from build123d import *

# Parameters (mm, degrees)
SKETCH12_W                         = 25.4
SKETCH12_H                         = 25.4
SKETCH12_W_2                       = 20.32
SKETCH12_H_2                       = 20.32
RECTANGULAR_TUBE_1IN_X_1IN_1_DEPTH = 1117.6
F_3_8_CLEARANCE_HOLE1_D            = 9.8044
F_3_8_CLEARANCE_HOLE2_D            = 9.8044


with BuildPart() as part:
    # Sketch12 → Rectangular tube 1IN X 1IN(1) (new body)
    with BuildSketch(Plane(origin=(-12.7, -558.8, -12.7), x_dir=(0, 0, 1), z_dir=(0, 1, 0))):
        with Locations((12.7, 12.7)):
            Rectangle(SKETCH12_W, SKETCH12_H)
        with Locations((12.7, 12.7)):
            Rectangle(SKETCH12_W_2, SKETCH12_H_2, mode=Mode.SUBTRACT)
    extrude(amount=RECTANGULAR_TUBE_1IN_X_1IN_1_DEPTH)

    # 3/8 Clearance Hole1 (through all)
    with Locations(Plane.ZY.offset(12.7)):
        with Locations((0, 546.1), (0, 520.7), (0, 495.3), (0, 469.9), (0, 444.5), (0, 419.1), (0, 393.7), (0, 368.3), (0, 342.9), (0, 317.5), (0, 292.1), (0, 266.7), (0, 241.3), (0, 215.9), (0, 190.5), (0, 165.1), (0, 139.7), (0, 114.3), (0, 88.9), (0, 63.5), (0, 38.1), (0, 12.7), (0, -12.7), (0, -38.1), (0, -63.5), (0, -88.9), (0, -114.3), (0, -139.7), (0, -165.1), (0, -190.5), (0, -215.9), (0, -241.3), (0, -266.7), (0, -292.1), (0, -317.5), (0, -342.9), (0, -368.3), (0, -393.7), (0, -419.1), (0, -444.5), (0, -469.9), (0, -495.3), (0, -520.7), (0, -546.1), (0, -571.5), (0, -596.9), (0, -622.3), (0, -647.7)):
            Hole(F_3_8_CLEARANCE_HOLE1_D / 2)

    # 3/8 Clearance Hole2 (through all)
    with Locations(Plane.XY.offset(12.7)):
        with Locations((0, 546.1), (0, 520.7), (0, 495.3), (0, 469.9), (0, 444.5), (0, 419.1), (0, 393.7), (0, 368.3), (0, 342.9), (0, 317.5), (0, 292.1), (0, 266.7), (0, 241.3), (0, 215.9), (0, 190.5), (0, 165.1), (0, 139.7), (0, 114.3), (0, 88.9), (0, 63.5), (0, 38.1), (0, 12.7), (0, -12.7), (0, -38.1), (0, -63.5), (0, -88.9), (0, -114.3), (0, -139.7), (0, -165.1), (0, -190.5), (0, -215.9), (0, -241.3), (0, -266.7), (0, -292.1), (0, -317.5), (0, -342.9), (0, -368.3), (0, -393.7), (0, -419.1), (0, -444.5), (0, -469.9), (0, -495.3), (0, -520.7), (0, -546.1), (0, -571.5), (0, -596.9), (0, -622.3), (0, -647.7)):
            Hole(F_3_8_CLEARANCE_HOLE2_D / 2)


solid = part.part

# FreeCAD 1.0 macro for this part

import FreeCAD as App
import Part
import Sketcher
Q = App.Units.Quantity

doc = App.newDocument("Part")
body = doc.addObject("PartDesign::Body", "Body")

# Sketch on XZ plane
sketch1 = body.newObject("Sketcher::SketchObject", "Sketch")
sketch1.AttachmentSupport = (doc.getObject("XZ_Plane"), [""])
sketch1.MapMode = "FlatFace"
sketch1.AttachmentOffset = App.Placement(App.Vector(0, 0, 22 * 25.4), App.Rotation())
sketch1.addGeometry([
    Part.LineSegment(App.Vector(13, -13, 0), App.Vector(-13, -13, 0)),  # 0
    Part.LineSegment(App.Vector(-13, -13, 0), App.Vector(-13, 13, 0)),  # 1
    Part.LineSegment(App.Vector(-13, 13, 0), App.Vector(13, 13, 0)),  # 2
    Part.LineSegment(App.Vector(13, 13, 0), App.Vector(13, -13, 0)),  # 3
    Part.LineSegment(App.Vector(-10, 10, 0), App.Vector(-10, -10, 0)),  # 4
    Part.LineSegment(App.Vector(-10, -10, 0), App.Vector(10, -10, 0)),  # 5
    Part.LineSegment(App.Vector(10, -10, 0), App.Vector(10, 10, 0)),  # 6
    Part.LineSegment(App.Vector(10, 10, 0), App.Vector(-10, 10, 0)),  # 7
], False)
sketch1.addConstraint([
    Sketcher.Constraint("Coincident", 0, 2, 1, 1),
    Sketcher.Constraint("Coincident", 1, 2, 2, 1),
    Sketcher.Constraint("Coincident", 2, 2, 3, 1),
    Sketcher.Constraint("Coincident", 3, 2, 0, 1),
    Sketcher.Constraint("Coincident", 4, 2, 5, 1),
    Sketcher.Constraint("Coincident", 5, 2, 6, 1),
    Sketcher.Constraint("Coincident", 6, 2, 7, 1),
    Sketcher.Constraint("Coincident", 7, 2, 4, 1),
    Sketcher.Constraint("Horizontal", 0),
    Sketcher.Constraint("Vertical", 1),
    Sketcher.Constraint("Horizontal", 2),
    Sketcher.Constraint("Vertical", 3),
    Sketcher.Constraint("Vertical", 4),
    Sketcher.Constraint("Horizontal", 5),
    Sketcher.Constraint("Vertical", 6),
    Sketcher.Constraint("Horizontal", 7),
    Sketcher.Constraint("Symmetric", 0, 2, 2, 2, -1, 1),
    Sketcher.Constraint("Symmetric", 4, 2, 6, 2, -1, 1),
    Sketcher.Constraint("Equal", 2, 1),
    Sketcher.Constraint("Equal", 7, 4),
    Sketcher.Constraint("DistanceX", 0, 2, 0, 1, Q("1 in")),
    Sketcher.Constraint("DistanceX", 5, 1, 5, 2, Q("0.8 in")),
])
pad1 = body.newObject("PartDesign::Pad", "Pad")
pad1.Profile = sketch1
pad1.Length = Q("44 in")
pad1.Reversed = True

# Sketch on YZ plane
sketch2 = body.newObject("Sketcher::SketchObject", "Sketch001")
sketch2.AttachmentSupport = (doc.getObject("YZ_Plane"), [""])
sketch2.MapMode = "FlatFace"
sketch2.AttachmentOffset = App.Placement(App.Vector(0, 0, -0.5 * 25.4), App.Rotation())
sketch2.addGeometry([
    Part.Circle(App.Vector(546.1, 0, 0), App.Vector(0, 0, 1), 4.9),  # 0
    Part.Circle(App.Vector(520.7, 0, 0), App.Vector(0, 0, 1), 4.9),  # 1
    Part.Circle(App.Vector(495.3, 0, 0), App.Vector(0, 0, 1), 4.9),  # 2
    Part.Circle(App.Vector(469.9, 0, 0), App.Vector(0, 0, 1), 4.9),  # 3
    Part.Circle(App.Vector(444.5, 0, 0), App.Vector(0, 0, 1), 4.9),  # 4
    Part.Circle(App.Vector(419.1, 0, 0), App.Vector(0, 0, 1), 4.9),  # 5
    Part.Circle(App.Vector(393.7, 0, 0), App.Vector(0, 0, 1), 4.9),  # 6
    Part.Circle(App.Vector(368.3, 0, 0), App.Vector(0, 0, 1), 4.9),  # 7
    Part.Circle(App.Vector(342.9, 0, 0), App.Vector(0, 0, 1), 4.9),  # 8
    Part.Circle(App.Vector(317.5, 0, 0), App.Vector(0, 0, 1), 4.9),  # 9
    Part.Circle(App.Vector(292.1, 0, 0), App.Vector(0, 0, 1), 4.9),  # 10
    Part.Circle(App.Vector(266.7, 0, 0), App.Vector(0, 0, 1), 4.9),  # 11
    Part.Circle(App.Vector(241.3, 0, 0), App.Vector(0, 0, 1), 4.9),  # 12
    Part.Circle(App.Vector(215.9, 0, 0), App.Vector(0, 0, 1), 4.9),  # 13
    Part.Circle(App.Vector(190.5, 0, 0), App.Vector(0, 0, 1), 4.9),  # 14
    Part.Circle(App.Vector(165.1, 0, 0), App.Vector(0, 0, 1), 4.9),  # 15
    Part.Circle(App.Vector(139.7, 0, 0), App.Vector(0, 0, 1), 4.9),  # 16
    Part.Circle(App.Vector(114.3, 0, 0), App.Vector(0, 0, 1), 4.9),  # 17
    Part.Circle(App.Vector(88.9, 0, 0), App.Vector(0, 0, 1), 4.9),  # 18
    Part.Circle(App.Vector(63.5, 0, 0), App.Vector(0, 0, 1), 4.9),  # 19
    Part.Circle(App.Vector(38.1, 0, 0), App.Vector(0, 0, 1), 4.9),  # 20
    Part.Circle(App.Vector(12.7, 0, 0), App.Vector(0, 0, 1), 4.9),  # 21
    Part.Circle(App.Vector(-12.7, 0, 0), App.Vector(0, 0, 1), 4.9),  # 22
    Part.Circle(App.Vector(-38.1, 0, 0), App.Vector(0, 0, 1), 4.9),  # 23
    Part.Circle(App.Vector(-63.5, 0, 0), App.Vector(0, 0, 1), 4.9),  # 24
    Part.Circle(App.Vector(-88.9, 0, 0), App.Vector(0, 0, 1), 4.9),  # 25
    Part.Circle(App.Vector(-114.3, 0, 0), App.Vector(0, 0, 1), 4.9),  # 26
    Part.Circle(App.Vector(-139.7, 0, 0), App.Vector(0, 0, 1), 4.9),  # 27
    Part.Circle(App.Vector(-165.1, 0, 0), App.Vector(0, 0, 1), 4.9),  # 28
    Part.Circle(App.Vector(-190.5, 0, 0), App.Vector(0, 0, 1), 4.9),  # 29
    Part.Circle(App.Vector(-215.9, 0, 0), App.Vector(0, 0, 1), 4.9),  # 30
    Part.Circle(App.Vector(-241.3, 0, 0), App.Vector(0, 0, 1), 4.9),  # 31
    Part.Circle(App.Vector(-266.7, 0, 0), App.Vector(0, 0, 1), 4.9),  # 32
    Part.Circle(App.Vector(-292.1, 0, 0), App.Vector(0, 0, 1), 4.9),  # 33
    Part.Circle(App.Vector(-317.5, 0, 0), App.Vector(0, 0, 1), 4.9),  # 34
    Part.Circle(App.Vector(-342.9, 0, 0), App.Vector(0, 0, 1), 4.9),  # 35
    Part.Circle(App.Vector(-368.3, 0, 0), App.Vector(0, 0, 1), 4.9),  # 36
    Part.Circle(App.Vector(-393.7, 0, 0), App.Vector(0, 0, 1), 4.9),  # 37
    Part.Circle(App.Vector(-419.1, 0, 0), App.Vector(0, 0, 1), 4.9),  # 38
    Part.Circle(App.Vector(-444.5, 0, 0), App.Vector(0, 0, 1), 4.9),  # 39
    Part.Circle(App.Vector(-469.9, 0, 0), App.Vector(0, 0, 1), 4.9),  # 40
    Part.Circle(App.Vector(-495.3, 0, 0), App.Vector(0, 0, 1), 4.9),  # 41
    Part.Circle(App.Vector(-520.7, 0, 0), App.Vector(0, 0, 1), 4.9),  # 42
    Part.Circle(App.Vector(-546.1, 0, 0), App.Vector(0, 0, 1), 4.9),  # 43
    Part.Circle(App.Vector(-571.5, 0, 0), App.Vector(0, 0, 1), 4.9),  # 44
    Part.Circle(App.Vector(-596.9, 0, 0), App.Vector(0, 0, 1), 4.9),  # 45
    Part.Circle(App.Vector(-622.3, 0, 0), App.Vector(0, 0, 1), 4.9),  # 46
    Part.Circle(App.Vector(-647.7, 0, 0), App.Vector(0, 0, 1), 4.9),  # 47
], False)
sketch2.addConstraint([
    Sketcher.Constraint("Equal", 0, 1),
    Sketcher.Constraint("Equal", 1, 2),
    Sketcher.Constraint("Equal", 2, 3),
    Sketcher.Constraint("Equal", 3, 4),
    Sketcher.Constraint("Equal", 4, 5),
    Sketcher.Constraint("Equal", 5, 6),
    Sketcher.Constraint("Equal", 6, 7),
    Sketcher.Constraint("Equal", 7, 8),
    Sketcher.Constraint("Equal", 8, 9),
    Sketcher.Constraint("Equal", 9, 10),
    Sketcher.Constraint("Equal", 10, 11),
    Sketcher.Constraint("Equal", 11, 12),
    Sketcher.Constraint("Equal", 12, 13),
    Sketcher.Constraint("Equal", 13, 14),
    Sketcher.Constraint("Equal", 14, 15),
    Sketcher.Constraint("Equal", 15, 16),
    Sketcher.Constraint("Equal", 16, 17),
    Sketcher.Constraint("Equal", 17, 18),
    Sketcher.Constraint("Equal", 18, 19),
    Sketcher.Constraint("Equal", 19, 20),
    Sketcher.Constraint("Equal", 20, 21),
    Sketcher.Constraint("Equal", 21, 22),
    Sketcher.Constraint("Equal", 22, 23),
    Sketcher.Constraint("Equal", 23, 24),
    Sketcher.Constraint("Equal", 24, 25),
    Sketcher.Constraint("Equal", 25, 26),
    Sketcher.Constraint("Equal", 26, 27),
    Sketcher.Constraint("Equal", 27, 28),
    Sketcher.Constraint("Equal", 28, 29),
    Sketcher.Constraint("Equal", 29, 30),
    Sketcher.Constraint("Equal", 30, 31),
    Sketcher.Constraint("Equal", 31, 32),
    Sketcher.Constraint("Equal", 32, 33),
    Sketcher.Constraint("Equal", 33, 34),
    Sketcher.Constraint("Equal", 34, 35),
    Sketcher.Constraint("Equal", 35, 36),
    Sketcher.Constraint("Equal", 36, 37),
    Sketcher.Constraint("Equal", 37, 38),
    Sketcher.Constraint("Equal", 38, 39),
    Sketcher.Constraint("Equal", 39, 40),
    Sketcher.Constraint("Equal", 40, 41),
    Sketcher.Constraint("Equal", 41, 42),
    Sketcher.Constraint("Equal", 42, 43),
    Sketcher.Constraint("Equal", 43, 44),
    Sketcher.Constraint("Equal", 44, 45),
    Sketcher.Constraint("Equal", 45, 46),
    Sketcher.Constraint("Equal", 46, 47),
    Sketcher.Constraint("Symmetric", 21, 3, 22, 3, -1, 1),
    Sketcher.Constraint("Symmetric", 20, 3, 23, 3, -1, 1),
    Sketcher.Constraint("Symmetric", 19, 3, 24, 3, -1, 1),
    Sketcher.Constraint("Symmetric", 18, 3, 25, 3, -1, 1),
    Sketcher.Constraint("Symmetric", 17, 3, 26, 3, -1, 1),
    Sketcher.Constraint("Symmetric", 16, 3, 27, 3, -1, 1),
    Sketcher.Constraint("Symmetric", 15, 3, 28, 3, -1, 1),
    Sketcher.Constraint("Symmetric", 14, 3, 29, 3, -1, 1),
    Sketcher.Constraint("Symmetric", 13, 3, 30, 3, -1, 1),
    Sketcher.Constraint("Symmetric", 12, 3, 31, 3, -1, 1),
    Sketcher.Constraint("Symmetric", 11, 3, 32, 3, -1, 1),
    Sketcher.Constraint("Symmetric", 10, 3, 33, 3, -1, 1),
    Sketcher.Constraint("Symmetric", 9, 3, 34, 3, -1, 1),
    Sketcher.Constraint("Symmetric", 8, 3, 35, 3, -1, 1),
    Sketcher.Constraint("Symmetric", 7, 3, 36, 3, -1, 1),
    Sketcher.Constraint("Symmetric", 6, 3, 37, 3, -1, 1),
    Sketcher.Constraint("Symmetric", 5, 3, 38, 3, -1, 1),
    Sketcher.Constraint("Symmetric", 4, 3, 39, 3, -1, 1),
    Sketcher.Constraint("Symmetric", 3, 3, 40, 3, -1, 1),
    Sketcher.Constraint("Symmetric", 2, 3, 41, 3, -1, 1),
    Sketcher.Constraint("Symmetric", 1, 3, 42, 3, -1, 1),
    Sketcher.Constraint("Symmetric", 0, 3, 43, 3, -1, 1),
    Sketcher.Constraint("PointOnObject", 0, 3, -1),
    Sketcher.Constraint("PointOnObject", 1, 3, -1),
    Sketcher.Constraint("PointOnObject", 2, 3, -1),
    Sketcher.Constraint("PointOnObject", 3, 3, -1),
    Sketcher.Constraint("PointOnObject", 4, 3, -1),
    Sketcher.Constraint("PointOnObject", 5, 3, -1),
    Sketcher.Constraint("PointOnObject", 6, 3, -1),
    Sketcher.Constraint("PointOnObject", 7, 3, -1),
    Sketcher.Constraint("PointOnObject", 8, 3, -1),
    Sketcher.Constraint("PointOnObject", 9, 3, -1),
    Sketcher.Constraint("PointOnObject", 10, 3, -1),
    Sketcher.Constraint("PointOnObject", 11, 3, -1),
    Sketcher.Constraint("PointOnObject", 12, 3, -1),
    Sketcher.Constraint("PointOnObject", 13, 3, -1),
    Sketcher.Constraint("PointOnObject", 14, 3, -1),
    Sketcher.Constraint("PointOnObject", 15, 3, -1),
    Sketcher.Constraint("PointOnObject", 16, 3, -1),
    Sketcher.Constraint("PointOnObject", 17, 3, -1),
    Sketcher.Constraint("PointOnObject", 18, 3, -1),
    Sketcher.Constraint("PointOnObject", 19, 3, -1),
    Sketcher.Constraint("PointOnObject", 20, 3, -1),
    Sketcher.Constraint("PointOnObject", 21, 3, -1),
    Sketcher.Constraint("PointOnObject", 44, 3, -1),
    Sketcher.Constraint("PointOnObject", 45, 3, -1),
    Sketcher.Constraint("PointOnObject", 46, 3, -1),
    Sketcher.Constraint("PointOnObject", 47, 3, -1),
    Sketcher.Constraint("Diameter", 0, Q("0.386 in")),
    Sketcher.Constraint("DistanceX", 1, 3, 0, 3, Q("1 in")),
    Sketcher.Constraint("DistanceX", 2, 3, 1, 3, Q("1 in")),
    Sketcher.Constraint("DistanceX", 3, 3, 2, 3, Q("1 in")),
    Sketcher.Constraint("DistanceX", 4, 3, 3, 3, Q("1 in")),
    Sketcher.Constraint("DistanceX", 5, 3, 4, 3, Q("1 in")),
    Sketcher.Constraint("DistanceX", 6, 3, 5, 3, Q("1 in")),
    Sketcher.Constraint("DistanceX", 7, 3, 6, 3, Q("1 in")),
    Sketcher.Constraint("DistanceX", 8, 3, 7, 3, Q("1 in")),
    Sketcher.Constraint("DistanceX", 9, 3, 8, 3, Q("1 in")),
    Sketcher.Constraint("DistanceX", 10, 3, 9, 3, Q("1 in")),
    Sketcher.Constraint("DistanceX", 11, 3, 10, 3, Q("1 in")),
    Sketcher.Constraint("DistanceX", 12, 3, 11, 3, Q("1 in")),
    Sketcher.Constraint("DistanceX", 13, 3, 12, 3, Q("1 in")),
    Sketcher.Constraint("DistanceX", 14, 3, 13, 3, Q("1 in")),
    Sketcher.Constraint("DistanceX", 15, 3, 14, 3, Q("1 in")),
    Sketcher.Constraint("DistanceX", 16, 3, 15, 3, Q("1 in")),
    Sketcher.Constraint("DistanceX", 17, 3, 16, 3, Q("1 in")),
    Sketcher.Constraint("DistanceX", 18, 3, 17, 3, Q("1 in")),
    Sketcher.Constraint("DistanceX", 19, 3, 18, 3, Q("1 in")),
    Sketcher.Constraint("DistanceX", 20, 3, 19, 3, Q("1 in")),
    Sketcher.Constraint("DistanceX", 21, 3, 20, 3, Q("1 in")),
    Sketcher.Constraint("DistanceX", 22, 3, 21, 3, Q("1 in")),
    Sketcher.Constraint("DistanceX", 44, 3, 43, 3, Q("1 in")),
    Sketcher.Constraint("DistanceX", 45, 3, 44, 3, Q("1 in")),
    Sketcher.Constraint("DistanceX", 46, 3, 45, 3, Q("1 in")),
    Sketcher.Constraint("DistanceX", 47, 3, 46, 3, Q("1 in")),
])
doc.recompute()
hole = body.newObject("PartDesign::Hole", "Hole")
hole.Profile = sketch2
hole.ThreadType = "None"
hole.Diameter = Q("0.386 in")
hole.DepthType = "ThroughAll"
hole.Reversed = True

# Sketch on XY plane
sketch3 = body.newObject("Sketcher::SketchObject", "Sketch002")
sketch3.AttachmentSupport = (doc.getObject("XY_Plane"), [""])
sketch3.MapMode = "FlatFace"
sketch3.AttachmentOffset = App.Placement(App.Vector(0, 0, 0.5 * 25.4), App.Rotation())
sketch3.addGeometry([
    Part.Circle(App.Vector(0, 546.1, 0), App.Vector(0, 0, 1), 4.9),  # 0
    Part.Circle(App.Vector(0, 520.7, 0), App.Vector(0, 0, 1), 4.9),  # 1
    Part.Circle(App.Vector(0, 495.3, 0), App.Vector(0, 0, 1), 4.9),  # 2
    Part.Circle(App.Vector(0, 469.9, 0), App.Vector(0, 0, 1), 4.9),  # 3
    Part.Circle(App.Vector(0, 444.5, 0), App.Vector(0, 0, 1), 4.9),  # 4
    Part.Circle(App.Vector(0, 419.1, 0), App.Vector(0, 0, 1), 4.9),  # 5
    Part.Circle(App.Vector(0, 393.7, 0), App.Vector(0, 0, 1), 4.9),  # 6
    Part.Circle(App.Vector(0, 368.3, 0), App.Vector(0, 0, 1), 4.9),  # 7
    Part.Circle(App.Vector(0, 342.9, 0), App.Vector(0, 0, 1), 4.9),  # 8
    Part.Circle(App.Vector(0, 317.5, 0), App.Vector(0, 0, 1), 4.9),  # 9
    Part.Circle(App.Vector(0, 292.1, 0), App.Vector(0, 0, 1), 4.9),  # 10
    Part.Circle(App.Vector(0, 266.7, 0), App.Vector(0, 0, 1), 4.9),  # 11
    Part.Circle(App.Vector(0, 241.3, 0), App.Vector(0, 0, 1), 4.9),  # 12
    Part.Circle(App.Vector(0, 215.9, 0), App.Vector(0, 0, 1), 4.9),  # 13
    Part.Circle(App.Vector(0, 190.5, 0), App.Vector(0, 0, 1), 4.9),  # 14
    Part.Circle(App.Vector(0, 165.1, 0), App.Vector(0, 0, 1), 4.9),  # 15
    Part.Circle(App.Vector(0, 139.7, 0), App.Vector(0, 0, 1), 4.9),  # 16
    Part.Circle(App.Vector(0, 114.3, 0), App.Vector(0, 0, 1), 4.9),  # 17
    Part.Circle(App.Vector(0, 88.9, 0), App.Vector(0, 0, 1), 4.9),  # 18
    Part.Circle(App.Vector(0, 63.5, 0), App.Vector(0, 0, 1), 4.9),  # 19
    Part.Circle(App.Vector(0, 38.1, 0), App.Vector(0, 0, 1), 4.9),  # 20
    Part.Circle(App.Vector(0, 12.7, 0), App.Vector(0, 0, 1), 4.9),  # 21
    Part.Circle(App.Vector(0, -12.7, 0), App.Vector(0, 0, 1), 4.9),  # 22
    Part.Circle(App.Vector(0, -38.1, 0), App.Vector(0, 0, 1), 4.9),  # 23
    Part.Circle(App.Vector(0, -63.5, 0), App.Vector(0, 0, 1), 4.9),  # 24
    Part.Circle(App.Vector(0, -88.9, 0), App.Vector(0, 0, 1), 4.9),  # 25
    Part.Circle(App.Vector(0, -114.3, 0), App.Vector(0, 0, 1), 4.9),  # 26
    Part.Circle(App.Vector(0, -139.7, 0), App.Vector(0, 0, 1), 4.9),  # 27
    Part.Circle(App.Vector(0, -165.1, 0), App.Vector(0, 0, 1), 4.9),  # 28
    Part.Circle(App.Vector(0, -190.5, 0), App.Vector(0, 0, 1), 4.9),  # 29
    Part.Circle(App.Vector(0, -215.9, 0), App.Vector(0, 0, 1), 4.9),  # 30
    Part.Circle(App.Vector(0, -241.3, 0), App.Vector(0, 0, 1), 4.9),  # 31
    Part.Circle(App.Vector(0, -266.7, 0), App.Vector(0, 0, 1), 4.9),  # 32
    Part.Circle(App.Vector(0, -292.1, 0), App.Vector(0, 0, 1), 4.9),  # 33
    Part.Circle(App.Vector(0, -317.5, 0), App.Vector(0, 0, 1), 4.9),  # 34
    Part.Circle(App.Vector(0, -342.9, 0), App.Vector(0, 0, 1), 4.9),  # 35
    Part.Circle(App.Vector(0, -368.3, 0), App.Vector(0, 0, 1), 4.9),  # 36
    Part.Circle(App.Vector(0, -393.7, 0), App.Vector(0, 0, 1), 4.9),  # 37
    Part.Circle(App.Vector(0, -419.1, 0), App.Vector(0, 0, 1), 4.9),  # 38
    Part.Circle(App.Vector(0, -444.5, 0), App.Vector(0, 0, 1), 4.9),  # 39
    Part.Circle(App.Vector(0, -469.9, 0), App.Vector(0, 0, 1), 4.9),  # 40
    Part.Circle(App.Vector(0, -495.3, 0), App.Vector(0, 0, 1), 4.9),  # 41
    Part.Circle(App.Vector(0, -520.7, 0), App.Vector(0, 0, 1), 4.9),  # 42
    Part.Circle(App.Vector(0, -546.1, 0), App.Vector(0, 0, 1), 4.9),  # 43
    Part.Circle(App.Vector(0, -571.5, 0), App.Vector(0, 0, 1), 4.9),  # 44
    Part.Circle(App.Vector(0, -596.9, 0), App.Vector(0, 0, 1), 4.9),  # 45
    Part.Circle(App.Vector(0, -622.3, 0), App.Vector(0, 0, 1), 4.9),  # 46
    Part.Circle(App.Vector(0, -647.7, 0), App.Vector(0, 0, 1), 4.9),  # 47
], False)
sketch3.addConstraint([
    Sketcher.Constraint("Equal", 0, 1),
    Sketcher.Constraint("Equal", 1, 2),
    Sketcher.Constraint("Equal", 2, 3),
    Sketcher.Constraint("Equal", 3, 4),
    Sketcher.Constraint("Equal", 4, 5),
    Sketcher.Constraint("Equal", 5, 6),
    Sketcher.Constraint("Equal", 6, 7),
    Sketcher.Constraint("Equal", 7, 8),
    Sketcher.Constraint("Equal", 8, 9),
    Sketcher.Constraint("Equal", 9, 10),
    Sketcher.Constraint("Equal", 10, 11),
    Sketcher.Constraint("Equal", 11, 12),
    Sketcher.Constraint("Equal", 12, 13),
    Sketcher.Constraint("Equal", 13, 14),
    Sketcher.Constraint("Equal", 14, 15),
    Sketcher.Constraint("Equal", 15, 16),
    Sketcher.Constraint("Equal", 16, 17),
    Sketcher.Constraint("Equal", 17, 18),
    Sketcher.Constraint("Equal", 18, 19),
    Sketcher.Constraint("Equal", 19, 20),
    Sketcher.Constraint("Equal", 20, 21),
    Sketcher.Constraint("Equal", 21, 22),
    Sketcher.Constraint("Equal", 22, 23),
    Sketcher.Constraint("Equal", 23, 24),
    Sketcher.Constraint("Equal", 24, 25),
    Sketcher.Constraint("Equal", 25, 26),
    Sketcher.Constraint("Equal", 26, 27),
    Sketcher.Constraint("Equal", 27, 28),
    Sketcher.Constraint("Equal", 28, 29),
    Sketcher.Constraint("Equal", 29, 30),
    Sketcher.Constraint("Equal", 30, 31),
    Sketcher.Constraint("Equal", 31, 32),
    Sketcher.Constraint("Equal", 32, 33),
    Sketcher.Constraint("Equal", 33, 34),
    Sketcher.Constraint("Equal", 34, 35),
    Sketcher.Constraint("Equal", 35, 36),
    Sketcher.Constraint("Equal", 36, 37),
    Sketcher.Constraint("Equal", 37, 38),
    Sketcher.Constraint("Equal", 38, 39),
    Sketcher.Constraint("Equal", 39, 40),
    Sketcher.Constraint("Equal", 40, 41),
    Sketcher.Constraint("Equal", 41, 42),
    Sketcher.Constraint("Equal", 42, 43),
    Sketcher.Constraint("Equal", 43, 44),
    Sketcher.Constraint("Equal", 44, 45),
    Sketcher.Constraint("Equal", 45, 46),
    Sketcher.Constraint("Equal", 46, 47),
    Sketcher.Constraint("Symmetric", 21, 3, 22, 3, -1, 1),
    Sketcher.Constraint("Symmetric", 20, 3, 23, 3, -1, 1),
    Sketcher.Constraint("Symmetric", 19, 3, 24, 3, -1, 1),
    Sketcher.Constraint("Symmetric", 18, 3, 25, 3, -1, 1),
    Sketcher.Constraint("Symmetric", 17, 3, 26, 3, -1, 1),
    Sketcher.Constraint("Symmetric", 16, 3, 27, 3, -1, 1),
    Sketcher.Constraint("Symmetric", 15, 3, 28, 3, -1, 1),
    Sketcher.Constraint("Symmetric", 14, 3, 29, 3, -1, 1),
    Sketcher.Constraint("Symmetric", 13, 3, 30, 3, -1, 1),
    Sketcher.Constraint("Symmetric", 12, 3, 31, 3, -1, 1),
    Sketcher.Constraint("Symmetric", 11, 3, 32, 3, -1, 1),
    Sketcher.Constraint("Symmetric", 10, 3, 33, 3, -1, 1),
    Sketcher.Constraint("Symmetric", 9, 3, 34, 3, -1, 1),
    Sketcher.Constraint("Symmetric", 8, 3, 35, 3, -1, 1),
    Sketcher.Constraint("Symmetric", 7, 3, 36, 3, -1, 1),
    Sketcher.Constraint("Symmetric", 6, 3, 37, 3, -1, 1),
    Sketcher.Constraint("Symmetric", 5, 3, 38, 3, -1, 1),
    Sketcher.Constraint("Symmetric", 4, 3, 39, 3, -1, 1),
    Sketcher.Constraint("Symmetric", 3, 3, 40, 3, -1, 1),
    Sketcher.Constraint("Symmetric", 2, 3, 41, 3, -1, 1),
    Sketcher.Constraint("Symmetric", 1, 3, 42, 3, -1, 1),
    Sketcher.Constraint("Symmetric", 0, 3, 43, 3, -1, 1),
    Sketcher.Constraint("PointOnObject", 0, 3, -2),
    Sketcher.Constraint("PointOnObject", 1, 3, -2),
    Sketcher.Constraint("PointOnObject", 2, 3, -2),
    Sketcher.Constraint("PointOnObject", 3, 3, -2),
    Sketcher.Constraint("PointOnObject", 4, 3, -2),
    Sketcher.Constraint("PointOnObject", 5, 3, -2),
    Sketcher.Constraint("PointOnObject", 6, 3, -2),
    Sketcher.Constraint("PointOnObject", 7, 3, -2),
    Sketcher.Constraint("PointOnObject", 8, 3, -2),
    Sketcher.Constraint("PointOnObject", 9, 3, -2),
    Sketcher.Constraint("PointOnObject", 10, 3, -2),
    Sketcher.Constraint("PointOnObject", 11, 3, -2),
    Sketcher.Constraint("PointOnObject", 12, 3, -2),
    Sketcher.Constraint("PointOnObject", 13, 3, -2),
    Sketcher.Constraint("PointOnObject", 14, 3, -2),
    Sketcher.Constraint("PointOnObject", 15, 3, -2),
    Sketcher.Constraint("PointOnObject", 16, 3, -2),
    Sketcher.Constraint("PointOnObject", 17, 3, -2),
    Sketcher.Constraint("PointOnObject", 18, 3, -2),
    Sketcher.Constraint("PointOnObject", 19, 3, -2),
    Sketcher.Constraint("PointOnObject", 20, 3, -2),
    Sketcher.Constraint("PointOnObject", 21, 3, -2),
    Sketcher.Constraint("PointOnObject", 44, 3, -2),
    Sketcher.Constraint("PointOnObject", 45, 3, -2),
    Sketcher.Constraint("PointOnObject", 46, 3, -2),
    Sketcher.Constraint("PointOnObject", 47, 3, -2),
    Sketcher.Constraint("Diameter", 0, Q("0.386 in")),
    Sketcher.Constraint("DistanceY", 1, 3, 0, 3, Q("1 in")),
    Sketcher.Constraint("DistanceY", 2, 3, 1, 3, Q("1 in")),
    Sketcher.Constraint("DistanceY", 3, 3, 2, 3, Q("1 in")),
    Sketcher.Constraint("DistanceY", 4, 3, 3, 3, Q("1 in")),
    Sketcher.Constraint("DistanceY", 5, 3, 4, 3, Q("1 in")),
    Sketcher.Constraint("DistanceY", 6, 3, 5, 3, Q("1 in")),
    Sketcher.Constraint("DistanceY", 7, 3, 6, 3, Q("1 in")),
    Sketcher.Constraint("DistanceY", 8, 3, 7, 3, Q("1 in")),
    Sketcher.Constraint("DistanceY", 9, 3, 8, 3, Q("1 in")),
    Sketcher.Constraint("DistanceY", 10, 3, 9, 3, Q("1 in")),
    Sketcher.Constraint("DistanceY", 11, 3, 10, 3, Q("1 in")),
    Sketcher.Constraint("DistanceY", 12, 3, 11, 3, Q("1 in")),
    Sketcher.Constraint("DistanceY", 13, 3, 12, 3, Q("1 in")),
    Sketcher.Constraint("DistanceY", 14, 3, 13, 3, Q("1 in")),
    Sketcher.Constraint("DistanceY", 15, 3, 14, 3, Q("1 in")),
    Sketcher.Constraint("DistanceY", 16, 3, 15, 3, Q("1 in")),
    Sketcher.Constraint("DistanceY", 17, 3, 16, 3, Q("1 in")),
    Sketcher.Constraint("DistanceY", 18, 3, 17, 3, Q("1 in")),
    Sketcher.Constraint("DistanceY", 19, 3, 18, 3, Q("1 in")),
    Sketcher.Constraint("DistanceY", 20, 3, 19, 3, Q("1 in")),
    Sketcher.Constraint("DistanceY", 21, 3, 20, 3, Q("1 in")),
    Sketcher.Constraint("DistanceY", 22, 3, 21, 3, Q("1 in")),
    Sketcher.Constraint("DistanceY", 44, 3, 43, 3, Q("1 in")),
    Sketcher.Constraint("DistanceY", 45, 3, 44, 3, Q("1 in")),
    Sketcher.Constraint("DistanceY", 46, 3, 45, 3, Q("1 in")),
    Sketcher.Constraint("DistanceY", 47, 3, 46, 3, Q("1 in")),
])
doc.recompute()
hole2 = body.newObject("PartDesign::Hole", "Hole001")
hole2.Profile = sketch3
hole2.ThreadType = "None"
hole2.Diameter = Q("0.386 in")
hole2.DepthType = "ThroughAll"

doc.recompute()
